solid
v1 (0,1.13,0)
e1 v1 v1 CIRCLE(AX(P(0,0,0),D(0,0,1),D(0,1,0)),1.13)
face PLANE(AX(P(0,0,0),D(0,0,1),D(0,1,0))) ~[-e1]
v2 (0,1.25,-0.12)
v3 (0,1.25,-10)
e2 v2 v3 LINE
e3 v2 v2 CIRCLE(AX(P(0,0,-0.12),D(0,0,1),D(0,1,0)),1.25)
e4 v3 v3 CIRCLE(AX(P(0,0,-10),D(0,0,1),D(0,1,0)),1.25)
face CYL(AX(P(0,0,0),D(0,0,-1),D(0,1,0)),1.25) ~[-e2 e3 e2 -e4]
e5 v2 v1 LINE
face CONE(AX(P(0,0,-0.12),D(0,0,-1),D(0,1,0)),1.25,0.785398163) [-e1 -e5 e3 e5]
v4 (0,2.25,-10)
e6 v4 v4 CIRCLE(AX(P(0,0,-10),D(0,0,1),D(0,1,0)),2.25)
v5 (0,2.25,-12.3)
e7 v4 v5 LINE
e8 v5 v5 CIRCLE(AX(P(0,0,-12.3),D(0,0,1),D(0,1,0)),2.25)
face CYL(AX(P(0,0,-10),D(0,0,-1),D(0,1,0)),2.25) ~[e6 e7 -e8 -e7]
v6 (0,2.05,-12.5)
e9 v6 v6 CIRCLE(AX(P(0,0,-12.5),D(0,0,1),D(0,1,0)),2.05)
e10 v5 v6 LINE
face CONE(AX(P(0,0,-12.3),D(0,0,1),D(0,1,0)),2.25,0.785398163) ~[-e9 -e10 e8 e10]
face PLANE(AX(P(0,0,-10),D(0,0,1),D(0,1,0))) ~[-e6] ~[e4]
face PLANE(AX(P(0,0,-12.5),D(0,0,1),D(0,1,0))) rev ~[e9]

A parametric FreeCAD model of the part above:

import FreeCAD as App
import Part
import Sketcher
Q = App.Units.Quantity


def add_polygon(sketch, points):
    """Adds a closed chain of lines whose ends are joined by coincident constraints."""
    first, n = sketch.GeometryCount, len(points)
    for a, b in zip(points, points[1:] + points[:1]):
        sketch.addGeometry(Part.LineSegment(App.Vector(*a, 0), App.Vector(*b, 0)), False)
    for i in range(n):
        sketch.addConstraint(Sketcher.Constraint("Coincident", first + i, 2, first + (i + 1) % n, 1))

doc = App.newDocument("Part")
body = doc.addObject("PartDesign::Body", "Body")

sketch1 = body.newObject("Sketcher::SketchObject", "Sketch")
sketch1.AttachmentSupport = (doc.getObject("YZ_Plane"), [""])
sketch1.MapMode = "FlatFace"
add_polygon(sketch1, [(1.13, 0), (0, 0), (0, -12.5), (2.05, -12.5), (2.25, -12.3), (2.25, -10), (1.25, -10), (1.25, -0.12)])
sketch1.addConstraint([
    Sketcher.Constraint("Horizontal", 0),
    Sketcher.Constraint("Vertical", 1),
    Sketcher.Constraint("Horizontal", 2),
    Sketcher.Constraint("Vertical", 4),
    Sketcher.Constraint("Horizontal", 5),
    Sketcher.Constraint("Vertical", 6),
    Sketcher.Constraint("Coincident", 0, 2, -1, 1),
    Sketcher.Constraint("Perpendicular", 3, 7),
    Sketcher.Constraint("Angle", 3, Q("45 deg")),
    Sketcher.Constraint("DistanceY", 4, 2, -1, 1, 10.0),
    Sketcher.Constraint("DistanceX", 2, 2, 3, 2, 0.2),
    Sketcher.Constraint("DistanceY", 2, 2, 4, 2, 2.5),
    Sketcher.Constraint("DistanceX", 5, 2, 5, 1, 1.0),
    Sketcher.Constraint("DistanceX", -1, 1, 3, 2, 2.25),
    Sketcher.Constraint("DistanceY", 6, 2, -1, 1, 0.12),
])
revolution = body.newObject("PartDesign::Revolution", "Revolution")
revolution.Profile = sketch1
revolution.ReferenceAxis = (sketch1, ["V_Axis"])
revolution.Angle = 360

doc.recompute()
